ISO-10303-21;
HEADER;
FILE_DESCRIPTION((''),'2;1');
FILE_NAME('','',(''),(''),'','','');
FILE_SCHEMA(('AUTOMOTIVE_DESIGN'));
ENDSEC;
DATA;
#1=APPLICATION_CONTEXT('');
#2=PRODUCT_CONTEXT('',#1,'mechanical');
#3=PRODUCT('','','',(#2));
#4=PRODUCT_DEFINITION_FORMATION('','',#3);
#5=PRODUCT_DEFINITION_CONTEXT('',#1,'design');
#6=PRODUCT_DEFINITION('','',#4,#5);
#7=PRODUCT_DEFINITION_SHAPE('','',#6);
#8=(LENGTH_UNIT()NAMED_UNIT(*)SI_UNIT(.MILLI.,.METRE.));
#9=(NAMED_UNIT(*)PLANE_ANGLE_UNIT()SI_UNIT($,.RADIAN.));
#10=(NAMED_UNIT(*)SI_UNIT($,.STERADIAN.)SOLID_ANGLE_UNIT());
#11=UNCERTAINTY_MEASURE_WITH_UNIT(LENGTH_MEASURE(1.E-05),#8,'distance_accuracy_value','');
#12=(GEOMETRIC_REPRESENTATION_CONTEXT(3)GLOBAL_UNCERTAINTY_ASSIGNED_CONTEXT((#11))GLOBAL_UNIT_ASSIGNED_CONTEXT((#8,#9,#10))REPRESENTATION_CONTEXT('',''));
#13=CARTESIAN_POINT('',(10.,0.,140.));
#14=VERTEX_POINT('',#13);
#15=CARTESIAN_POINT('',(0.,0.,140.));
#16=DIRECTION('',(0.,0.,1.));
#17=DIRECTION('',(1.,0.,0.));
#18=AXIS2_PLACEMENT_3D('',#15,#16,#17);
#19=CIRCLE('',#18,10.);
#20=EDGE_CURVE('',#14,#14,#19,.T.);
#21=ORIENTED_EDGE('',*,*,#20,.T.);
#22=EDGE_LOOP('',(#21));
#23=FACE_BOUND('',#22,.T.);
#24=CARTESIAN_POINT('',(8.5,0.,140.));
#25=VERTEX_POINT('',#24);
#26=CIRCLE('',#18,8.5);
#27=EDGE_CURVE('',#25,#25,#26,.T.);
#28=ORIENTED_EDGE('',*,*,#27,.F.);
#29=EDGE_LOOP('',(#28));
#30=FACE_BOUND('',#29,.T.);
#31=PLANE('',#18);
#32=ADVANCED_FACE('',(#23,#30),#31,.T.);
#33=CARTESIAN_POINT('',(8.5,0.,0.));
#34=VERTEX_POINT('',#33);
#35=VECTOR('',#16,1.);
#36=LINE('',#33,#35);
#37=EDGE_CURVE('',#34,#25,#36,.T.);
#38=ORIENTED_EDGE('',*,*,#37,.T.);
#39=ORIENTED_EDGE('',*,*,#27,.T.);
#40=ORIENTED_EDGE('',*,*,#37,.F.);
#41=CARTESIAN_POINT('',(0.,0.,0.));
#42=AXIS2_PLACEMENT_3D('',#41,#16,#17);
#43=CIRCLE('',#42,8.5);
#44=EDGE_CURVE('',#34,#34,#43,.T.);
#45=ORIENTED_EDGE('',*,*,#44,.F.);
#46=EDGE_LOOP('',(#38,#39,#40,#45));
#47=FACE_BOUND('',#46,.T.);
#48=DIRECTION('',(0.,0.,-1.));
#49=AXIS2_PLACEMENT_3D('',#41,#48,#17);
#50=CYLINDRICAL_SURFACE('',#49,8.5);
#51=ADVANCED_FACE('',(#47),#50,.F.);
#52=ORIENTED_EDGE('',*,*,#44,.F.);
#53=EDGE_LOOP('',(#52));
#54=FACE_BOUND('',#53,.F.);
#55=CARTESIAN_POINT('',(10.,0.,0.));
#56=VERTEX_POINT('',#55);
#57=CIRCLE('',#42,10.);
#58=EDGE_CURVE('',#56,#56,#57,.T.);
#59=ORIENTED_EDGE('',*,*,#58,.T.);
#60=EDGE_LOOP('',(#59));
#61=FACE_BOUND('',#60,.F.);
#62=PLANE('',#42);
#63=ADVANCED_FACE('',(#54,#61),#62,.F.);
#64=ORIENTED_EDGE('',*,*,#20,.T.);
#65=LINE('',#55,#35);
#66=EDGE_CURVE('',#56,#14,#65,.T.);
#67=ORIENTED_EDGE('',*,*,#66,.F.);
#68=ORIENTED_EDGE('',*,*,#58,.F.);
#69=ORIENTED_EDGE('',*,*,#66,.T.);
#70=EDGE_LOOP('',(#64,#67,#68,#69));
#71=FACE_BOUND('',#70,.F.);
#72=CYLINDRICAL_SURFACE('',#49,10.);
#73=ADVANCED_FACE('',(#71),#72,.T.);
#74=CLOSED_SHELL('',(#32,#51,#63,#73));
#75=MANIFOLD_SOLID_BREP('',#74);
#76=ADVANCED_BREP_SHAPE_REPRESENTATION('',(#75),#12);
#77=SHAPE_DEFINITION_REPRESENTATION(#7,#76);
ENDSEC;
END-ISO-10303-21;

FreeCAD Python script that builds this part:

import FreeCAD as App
import Part
import Sketcher

V = App.Vector

doc = App.newDocument("Part")
body = doc.addObject("PartDesign::Body", "Body")

# Sketch on XY plane
sketch1 = body.newObject("Sketcher::SketchObject", "Sketch")
sketch1.AttachmentSupport = (doc.getObject("XY_Plane"), [""])
sketch1.MapMode = "FlatFace"
sketch1.addGeometry([
    Part.Circle(V(0, 0, 0), V(0, 0, 1), 10),
    Part.Circle(V(0, 0, 0), V(0, 0, 1), 8.5),
], False)
sketch1.addConstraint([
    Sketcher.Constraint("Coincident", 0, 3, -1, 1),
    Sketcher.Constraint("Coincident", 1, 3, -1, 1),
    Sketcher.Constraint("Diameter", 0, 20.0),
    Sketcher.Constraint("Diameter", 1, 17.0),
])
pad1 = body.newObject("PartDesign::Pad", "Pad")
pad1.Profile = sketch1
pad1.Length = 140

doc.recompute()
